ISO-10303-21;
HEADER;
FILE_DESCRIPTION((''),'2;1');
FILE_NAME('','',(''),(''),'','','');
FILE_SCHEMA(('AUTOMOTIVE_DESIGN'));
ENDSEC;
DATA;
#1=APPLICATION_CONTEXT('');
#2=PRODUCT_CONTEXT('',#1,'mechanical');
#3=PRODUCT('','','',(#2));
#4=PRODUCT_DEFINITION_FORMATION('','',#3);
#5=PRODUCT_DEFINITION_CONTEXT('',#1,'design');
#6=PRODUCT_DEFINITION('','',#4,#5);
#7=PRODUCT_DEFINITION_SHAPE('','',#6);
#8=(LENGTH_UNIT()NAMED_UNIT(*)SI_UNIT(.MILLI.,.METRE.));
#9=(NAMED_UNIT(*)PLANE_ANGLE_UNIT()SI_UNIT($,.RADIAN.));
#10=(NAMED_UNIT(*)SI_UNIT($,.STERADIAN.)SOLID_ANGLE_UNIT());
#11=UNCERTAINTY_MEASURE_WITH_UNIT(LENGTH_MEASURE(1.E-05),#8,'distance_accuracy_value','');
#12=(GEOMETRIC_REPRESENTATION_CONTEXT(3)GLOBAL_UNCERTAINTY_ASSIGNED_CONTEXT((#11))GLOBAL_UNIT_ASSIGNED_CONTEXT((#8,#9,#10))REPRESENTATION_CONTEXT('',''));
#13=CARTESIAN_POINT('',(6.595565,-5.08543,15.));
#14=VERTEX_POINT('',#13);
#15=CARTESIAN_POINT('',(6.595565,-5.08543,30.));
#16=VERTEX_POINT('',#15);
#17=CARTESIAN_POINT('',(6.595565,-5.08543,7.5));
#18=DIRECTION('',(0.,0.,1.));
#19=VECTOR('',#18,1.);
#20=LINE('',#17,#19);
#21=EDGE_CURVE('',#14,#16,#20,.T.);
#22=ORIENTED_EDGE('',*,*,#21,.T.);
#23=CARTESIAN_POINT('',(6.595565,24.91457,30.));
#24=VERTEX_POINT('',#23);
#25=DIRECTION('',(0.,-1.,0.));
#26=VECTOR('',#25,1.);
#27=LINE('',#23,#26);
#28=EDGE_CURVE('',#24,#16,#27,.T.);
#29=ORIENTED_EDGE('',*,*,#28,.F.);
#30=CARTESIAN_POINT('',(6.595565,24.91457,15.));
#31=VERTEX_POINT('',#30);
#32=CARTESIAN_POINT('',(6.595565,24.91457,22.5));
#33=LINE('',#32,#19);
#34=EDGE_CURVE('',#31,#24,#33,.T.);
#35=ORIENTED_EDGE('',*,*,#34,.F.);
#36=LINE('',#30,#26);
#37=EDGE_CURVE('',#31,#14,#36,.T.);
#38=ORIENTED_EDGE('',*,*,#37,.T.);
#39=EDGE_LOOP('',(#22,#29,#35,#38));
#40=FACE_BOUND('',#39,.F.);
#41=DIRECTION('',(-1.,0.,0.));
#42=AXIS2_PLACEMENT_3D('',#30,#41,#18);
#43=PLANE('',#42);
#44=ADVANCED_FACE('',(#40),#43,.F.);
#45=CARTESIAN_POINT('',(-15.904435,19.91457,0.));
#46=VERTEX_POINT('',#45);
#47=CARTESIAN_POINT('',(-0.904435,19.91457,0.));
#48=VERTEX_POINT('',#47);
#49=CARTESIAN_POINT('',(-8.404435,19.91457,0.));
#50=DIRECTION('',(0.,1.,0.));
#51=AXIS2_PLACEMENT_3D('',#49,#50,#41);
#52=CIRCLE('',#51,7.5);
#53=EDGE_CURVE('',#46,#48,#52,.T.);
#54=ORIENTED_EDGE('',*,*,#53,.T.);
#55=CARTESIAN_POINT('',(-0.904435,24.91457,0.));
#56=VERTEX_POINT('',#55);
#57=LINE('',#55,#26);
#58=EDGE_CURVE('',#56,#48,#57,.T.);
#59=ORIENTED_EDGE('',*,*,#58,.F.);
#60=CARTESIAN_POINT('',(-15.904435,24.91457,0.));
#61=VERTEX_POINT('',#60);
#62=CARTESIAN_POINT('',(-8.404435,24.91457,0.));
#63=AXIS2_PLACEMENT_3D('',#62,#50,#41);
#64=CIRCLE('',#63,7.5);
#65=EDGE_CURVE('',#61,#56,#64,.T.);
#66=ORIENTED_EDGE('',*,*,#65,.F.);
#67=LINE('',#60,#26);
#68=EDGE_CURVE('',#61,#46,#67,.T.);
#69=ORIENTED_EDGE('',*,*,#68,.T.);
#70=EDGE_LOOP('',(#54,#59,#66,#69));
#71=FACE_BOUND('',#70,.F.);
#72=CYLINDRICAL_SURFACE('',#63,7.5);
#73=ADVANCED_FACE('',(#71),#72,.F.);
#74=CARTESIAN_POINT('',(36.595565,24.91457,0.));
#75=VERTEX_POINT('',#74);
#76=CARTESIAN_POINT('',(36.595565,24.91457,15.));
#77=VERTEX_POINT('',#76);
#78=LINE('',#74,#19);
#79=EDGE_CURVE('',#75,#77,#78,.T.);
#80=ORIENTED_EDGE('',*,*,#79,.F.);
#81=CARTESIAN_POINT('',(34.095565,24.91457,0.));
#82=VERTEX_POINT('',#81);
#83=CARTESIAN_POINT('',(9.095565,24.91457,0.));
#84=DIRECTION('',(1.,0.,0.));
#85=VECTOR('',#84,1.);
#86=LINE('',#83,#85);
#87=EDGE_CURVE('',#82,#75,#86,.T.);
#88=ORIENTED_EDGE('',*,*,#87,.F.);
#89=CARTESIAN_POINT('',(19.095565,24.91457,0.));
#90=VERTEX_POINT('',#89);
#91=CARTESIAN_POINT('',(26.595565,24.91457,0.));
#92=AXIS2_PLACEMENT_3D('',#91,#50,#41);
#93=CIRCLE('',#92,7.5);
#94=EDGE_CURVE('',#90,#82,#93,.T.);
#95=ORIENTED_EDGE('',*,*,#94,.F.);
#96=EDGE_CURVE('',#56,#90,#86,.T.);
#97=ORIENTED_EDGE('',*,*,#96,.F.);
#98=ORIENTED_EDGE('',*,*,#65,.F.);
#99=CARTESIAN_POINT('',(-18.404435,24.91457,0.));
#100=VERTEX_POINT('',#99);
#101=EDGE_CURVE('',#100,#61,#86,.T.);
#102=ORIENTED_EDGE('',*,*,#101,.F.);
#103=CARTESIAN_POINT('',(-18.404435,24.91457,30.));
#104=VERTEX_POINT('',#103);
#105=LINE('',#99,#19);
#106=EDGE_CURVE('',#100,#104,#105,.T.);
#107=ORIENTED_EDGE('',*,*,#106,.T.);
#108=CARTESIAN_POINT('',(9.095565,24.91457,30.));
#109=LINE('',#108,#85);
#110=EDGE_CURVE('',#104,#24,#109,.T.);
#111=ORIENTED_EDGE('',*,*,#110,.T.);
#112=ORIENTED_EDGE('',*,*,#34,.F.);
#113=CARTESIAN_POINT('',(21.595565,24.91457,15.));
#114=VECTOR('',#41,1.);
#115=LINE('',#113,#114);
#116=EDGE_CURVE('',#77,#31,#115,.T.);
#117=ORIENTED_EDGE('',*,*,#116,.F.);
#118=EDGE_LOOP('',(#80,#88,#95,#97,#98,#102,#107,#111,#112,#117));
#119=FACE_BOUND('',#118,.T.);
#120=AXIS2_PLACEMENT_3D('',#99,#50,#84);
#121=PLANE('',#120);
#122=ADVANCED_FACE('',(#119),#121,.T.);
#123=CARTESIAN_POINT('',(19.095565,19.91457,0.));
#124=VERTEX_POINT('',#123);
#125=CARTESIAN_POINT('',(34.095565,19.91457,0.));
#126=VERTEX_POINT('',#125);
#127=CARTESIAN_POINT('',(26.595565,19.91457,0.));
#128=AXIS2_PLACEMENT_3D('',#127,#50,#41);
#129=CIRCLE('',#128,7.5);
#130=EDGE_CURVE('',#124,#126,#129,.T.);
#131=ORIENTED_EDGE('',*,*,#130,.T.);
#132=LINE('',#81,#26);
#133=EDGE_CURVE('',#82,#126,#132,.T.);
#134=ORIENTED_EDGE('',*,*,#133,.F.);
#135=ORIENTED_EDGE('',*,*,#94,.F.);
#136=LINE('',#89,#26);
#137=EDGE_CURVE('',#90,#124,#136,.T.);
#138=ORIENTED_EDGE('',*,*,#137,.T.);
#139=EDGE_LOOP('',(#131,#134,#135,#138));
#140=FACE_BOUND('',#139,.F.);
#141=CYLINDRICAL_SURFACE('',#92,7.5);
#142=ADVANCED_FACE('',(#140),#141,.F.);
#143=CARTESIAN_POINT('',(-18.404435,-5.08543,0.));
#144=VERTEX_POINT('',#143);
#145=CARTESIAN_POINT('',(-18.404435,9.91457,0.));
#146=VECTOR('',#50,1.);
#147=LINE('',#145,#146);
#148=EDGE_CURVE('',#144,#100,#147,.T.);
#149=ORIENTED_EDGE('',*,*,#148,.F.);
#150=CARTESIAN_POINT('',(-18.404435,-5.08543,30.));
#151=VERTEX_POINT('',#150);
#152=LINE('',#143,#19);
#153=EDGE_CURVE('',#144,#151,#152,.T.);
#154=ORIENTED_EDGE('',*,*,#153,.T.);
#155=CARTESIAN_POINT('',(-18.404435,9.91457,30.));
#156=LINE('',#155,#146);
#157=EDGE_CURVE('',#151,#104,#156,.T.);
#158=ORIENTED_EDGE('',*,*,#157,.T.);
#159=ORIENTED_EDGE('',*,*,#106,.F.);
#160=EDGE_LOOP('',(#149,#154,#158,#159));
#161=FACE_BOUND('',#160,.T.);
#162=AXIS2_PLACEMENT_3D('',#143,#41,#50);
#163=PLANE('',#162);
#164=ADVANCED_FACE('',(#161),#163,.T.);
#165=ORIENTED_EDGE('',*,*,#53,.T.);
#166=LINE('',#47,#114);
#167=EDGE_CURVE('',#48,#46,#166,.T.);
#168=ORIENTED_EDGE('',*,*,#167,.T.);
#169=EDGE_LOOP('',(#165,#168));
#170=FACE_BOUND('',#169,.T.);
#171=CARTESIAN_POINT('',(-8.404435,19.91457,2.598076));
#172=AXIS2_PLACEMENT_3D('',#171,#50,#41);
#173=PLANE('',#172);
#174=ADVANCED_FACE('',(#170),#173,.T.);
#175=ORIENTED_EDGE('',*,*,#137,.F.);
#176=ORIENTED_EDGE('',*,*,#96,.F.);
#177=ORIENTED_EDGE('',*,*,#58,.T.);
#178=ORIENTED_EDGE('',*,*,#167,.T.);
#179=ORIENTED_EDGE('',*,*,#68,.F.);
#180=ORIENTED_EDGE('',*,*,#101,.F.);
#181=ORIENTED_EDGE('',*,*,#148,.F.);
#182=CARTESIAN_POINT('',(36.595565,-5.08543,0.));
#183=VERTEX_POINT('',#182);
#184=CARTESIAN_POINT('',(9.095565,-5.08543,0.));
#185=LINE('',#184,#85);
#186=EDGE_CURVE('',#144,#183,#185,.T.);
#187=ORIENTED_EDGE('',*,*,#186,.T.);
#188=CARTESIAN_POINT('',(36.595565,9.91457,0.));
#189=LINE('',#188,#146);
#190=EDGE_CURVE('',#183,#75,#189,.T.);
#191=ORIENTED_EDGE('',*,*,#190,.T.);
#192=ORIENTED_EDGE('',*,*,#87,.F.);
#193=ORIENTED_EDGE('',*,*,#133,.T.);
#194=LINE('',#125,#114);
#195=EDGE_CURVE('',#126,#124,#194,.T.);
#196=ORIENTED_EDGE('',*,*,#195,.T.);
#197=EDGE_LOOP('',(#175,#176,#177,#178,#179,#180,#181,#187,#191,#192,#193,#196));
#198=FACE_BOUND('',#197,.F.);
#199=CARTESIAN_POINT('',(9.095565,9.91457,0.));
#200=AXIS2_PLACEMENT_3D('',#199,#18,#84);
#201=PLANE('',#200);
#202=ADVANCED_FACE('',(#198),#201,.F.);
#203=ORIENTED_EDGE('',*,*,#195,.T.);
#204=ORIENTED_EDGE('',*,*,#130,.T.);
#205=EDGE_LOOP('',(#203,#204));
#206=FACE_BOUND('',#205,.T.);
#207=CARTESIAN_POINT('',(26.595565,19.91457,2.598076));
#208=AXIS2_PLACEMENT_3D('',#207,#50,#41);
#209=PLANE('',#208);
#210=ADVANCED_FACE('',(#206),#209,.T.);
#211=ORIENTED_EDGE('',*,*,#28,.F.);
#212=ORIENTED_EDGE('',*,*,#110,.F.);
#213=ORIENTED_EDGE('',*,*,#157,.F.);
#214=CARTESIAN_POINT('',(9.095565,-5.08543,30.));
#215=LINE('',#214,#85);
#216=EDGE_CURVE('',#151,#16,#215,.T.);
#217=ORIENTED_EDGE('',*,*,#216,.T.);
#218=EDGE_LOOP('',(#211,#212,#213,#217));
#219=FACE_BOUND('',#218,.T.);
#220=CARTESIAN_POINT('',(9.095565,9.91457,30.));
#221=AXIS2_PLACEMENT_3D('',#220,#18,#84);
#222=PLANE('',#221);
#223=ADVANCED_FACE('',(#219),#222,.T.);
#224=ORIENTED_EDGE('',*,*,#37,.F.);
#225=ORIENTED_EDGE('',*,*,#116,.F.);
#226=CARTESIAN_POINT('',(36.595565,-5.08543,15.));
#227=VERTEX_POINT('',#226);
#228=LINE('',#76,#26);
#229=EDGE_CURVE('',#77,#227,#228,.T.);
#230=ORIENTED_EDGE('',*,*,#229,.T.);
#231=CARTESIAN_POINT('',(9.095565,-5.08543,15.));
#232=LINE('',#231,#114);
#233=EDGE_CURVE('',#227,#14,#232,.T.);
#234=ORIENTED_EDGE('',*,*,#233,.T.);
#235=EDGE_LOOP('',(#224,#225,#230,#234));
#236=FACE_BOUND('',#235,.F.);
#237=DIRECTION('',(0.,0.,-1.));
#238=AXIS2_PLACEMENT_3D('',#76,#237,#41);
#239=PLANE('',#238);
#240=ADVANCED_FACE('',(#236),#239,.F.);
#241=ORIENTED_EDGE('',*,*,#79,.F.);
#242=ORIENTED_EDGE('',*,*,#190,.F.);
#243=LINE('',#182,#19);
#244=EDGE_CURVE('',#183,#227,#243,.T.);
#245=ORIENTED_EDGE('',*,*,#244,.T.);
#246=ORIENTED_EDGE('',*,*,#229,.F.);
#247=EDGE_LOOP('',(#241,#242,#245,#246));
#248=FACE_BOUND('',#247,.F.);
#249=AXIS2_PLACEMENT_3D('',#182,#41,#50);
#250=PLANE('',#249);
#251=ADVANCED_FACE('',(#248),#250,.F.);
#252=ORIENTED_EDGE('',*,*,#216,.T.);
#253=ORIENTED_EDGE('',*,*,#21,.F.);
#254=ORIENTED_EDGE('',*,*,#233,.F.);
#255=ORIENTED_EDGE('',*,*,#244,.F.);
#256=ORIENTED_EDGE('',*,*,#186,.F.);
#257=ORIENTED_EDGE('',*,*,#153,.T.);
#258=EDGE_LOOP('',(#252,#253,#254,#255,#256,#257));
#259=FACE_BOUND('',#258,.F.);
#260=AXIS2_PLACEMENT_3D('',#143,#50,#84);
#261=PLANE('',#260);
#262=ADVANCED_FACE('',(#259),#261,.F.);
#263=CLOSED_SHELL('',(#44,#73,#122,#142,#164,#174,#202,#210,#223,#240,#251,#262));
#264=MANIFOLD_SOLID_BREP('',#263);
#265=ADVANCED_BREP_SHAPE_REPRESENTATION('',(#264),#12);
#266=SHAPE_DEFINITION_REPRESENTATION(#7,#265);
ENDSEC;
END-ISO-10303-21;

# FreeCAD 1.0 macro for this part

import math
import FreeCAD as App
import Part
import Sketcher

V = App.Vector


def add_polygon(sketch, points):
    """Adds a closed chain of lines whose ends are joined by coincident constraints."""
    first, n = sketch.GeometryCount, len(points)
    for a, b in zip(points, points[1:] + points[:1]):
        sketch.addGeometry(Part.LineSegment(App.Vector(*a, 0), App.Vector(*b, 0)), False)
    for i in range(n):
        sketch.addConstraint(Sketcher.Constraint("Coincident", first + i, 2, first + (i + 1) % n, 1))

doc = App.newDocument("Part")
body = doc.addObject("PartDesign::Body", "Body")

sketch1 = body.newObject("Sketcher::SketchObject", "Sketch")
sketch1.AttachmentSupport = (doc.getObject("XY_Plane"), [""])
sketch1.MapMode = "FlatFace"
add_polygon(sketch1, [(-18, 25), (-18, -5), (37, -5), (37, 25)])
sketch1.addConstraint(Sketcher.Constraint("Vertical", 0))
sketch1.addConstraint(Sketcher.Constraint("Horizontal", 1))
sketch1.addConstraint(Sketcher.Constraint("Vertical", 2))
sketch1.addConstraint(Sketcher.Constraint("Horizontal", 3))
sketch1.addConstraint(Sketcher.Constraint("DistanceX", 1, 1, 1, 2, 55.0))
sketch1.addConstraint(Sketcher.Constraint("DistanceY", 0, 2, 0, 1, 30.0))
sketch1.addConstraint(Sketcher.Constraint("DistanceY", 0, 2, -1, 1, 5.08543))
sketch1.addConstraint(Sketcher.Constraint("DistanceX", 0, 2, -1, 1, 18.404435))
pad1 = body.newObject("PartDesign::Pad", "Pad")
pad1.Profile = sketch1
pad1.Length = 30

sketch2 = body.newObject("Sketcher::SketchObject", "Sketch001")
sketch2.AttachmentSupport = (doc.getObject("XZ_Plane"), [""])
sketch2.MapMode = "FlatFace"
sketch2.AttachmentOffset = App.Placement(V(0, 0, -24.91457), App.Rotation())
add_polygon(sketch2, [(37, 30), (37, 15), (7, 15), (7, 30)])
sketch2.addConstraint(Sketcher.Constraint("Vertical", 0))
sketch2.addConstraint(Sketcher.Constraint("Horizontal", 1))
sketch2.addConstraint(Sketcher.Constraint("Vertical", 2))
sketch2.addConstraint(Sketcher.Constraint("Horizontal", 3))
sketch2.addConstraint(Sketcher.Constraint("DistanceX", 1, 2, 1, 1, 30.0))
sketch2.addConstraint(Sketcher.Constraint("DistanceY", 0, 2, 0, 1, 15.0))
sketch2.addConstraint(Sketcher.Constraint("DistanceY", -1, 1, 0, 2, 15.0))
sketch2.addConstraint(Sketcher.Constraint("DistanceX", -1, 1, 0, 2, 36.595565))
pocket1 = body.newObject("PartDesign::Pocket", "Pocket")
pocket1.Profile = sketch2
pocket1.Type = "ThroughAll"
pocket1.Reversed = True

sketch3 = body.newObject("Sketcher::SketchObject", "Sketch002")
sketch3.AttachmentSupport = (doc.getObject("XZ_Plane"), [""])
sketch3.MapMode = "FlatFace"
sketch3.AttachmentOffset = App.Placement(V(0, 0, -24.91457), App.Rotation())
sketch3.addGeometry(Part.LineSegment(V(34, 0, 0), V(19, 0, 0)), False)
sketch3.addGeometry(Part.ArcOfCircle(Part.Circle(V(27, 0, 0), V(0, 0, 1), 8), math.radians(0), math.radians(180)), False)
sketch3.addGeometry(Part.ArcOfCircle(Part.Circle(V(-8, 0, 0), V(0, 0, 1), 8), math.radians(0), math.radians(180)), False)
sketch3.addGeometry(Part.LineSegment(V(-1, 0, 0), V(-16, 0, 0)), False)
sketch3.addConstraint(Sketcher.Constraint("Coincident", 0, 1, 1, 1))
sketch3.addConstraint(Sketcher.Constraint("Coincident", 1, 2, 0, 2))
sketch3.addConstraint(Sketcher.Constraint("Coincident", 2, 1, 3, 1))
sketch3.addConstraint(Sketcher.Constraint("Coincident", 3, 2, 2, 2))
sketch3.addConstraint(Sketcher.Constraint("Horizontal", 0))
sketch3.addConstraint(Sketcher.Constraint("Horizontal", 3))
sketch3.addConstraint(Sketcher.Constraint("Equal", 1, 2))
sketch3.addConstraint(Sketcher.Constraint("PointOnObject", 1, 3, -1))
sketch3.addConstraint(Sketcher.Constraint("PointOnObject", 2, 3, -1))
sketch3.addConstraint(Sketcher.Constraint("PointOnObject", 0, 1, -1))
sketch3.addConstraint(Sketcher.Constraint("PointOnObject", 2, 1, -1))
sketch3.addConstraint(Sketcher.Constraint("Radius", 1, 7.5))
sketch3.addConstraint(Sketcher.Constraint("DistanceX", 2, 3, 1, 3, 35.0))
sketch3.addConstraint(Sketcher.Constraint("DistanceX", -1, 1, 1, 3, 26.595565))
pocket2 = body.newObject("PartDesign::Pocket", "Pocket001")
pocket2.Profile = sketch3
pocket2.Length = 5
pocket2.Reversed = True

doc.recompute()
